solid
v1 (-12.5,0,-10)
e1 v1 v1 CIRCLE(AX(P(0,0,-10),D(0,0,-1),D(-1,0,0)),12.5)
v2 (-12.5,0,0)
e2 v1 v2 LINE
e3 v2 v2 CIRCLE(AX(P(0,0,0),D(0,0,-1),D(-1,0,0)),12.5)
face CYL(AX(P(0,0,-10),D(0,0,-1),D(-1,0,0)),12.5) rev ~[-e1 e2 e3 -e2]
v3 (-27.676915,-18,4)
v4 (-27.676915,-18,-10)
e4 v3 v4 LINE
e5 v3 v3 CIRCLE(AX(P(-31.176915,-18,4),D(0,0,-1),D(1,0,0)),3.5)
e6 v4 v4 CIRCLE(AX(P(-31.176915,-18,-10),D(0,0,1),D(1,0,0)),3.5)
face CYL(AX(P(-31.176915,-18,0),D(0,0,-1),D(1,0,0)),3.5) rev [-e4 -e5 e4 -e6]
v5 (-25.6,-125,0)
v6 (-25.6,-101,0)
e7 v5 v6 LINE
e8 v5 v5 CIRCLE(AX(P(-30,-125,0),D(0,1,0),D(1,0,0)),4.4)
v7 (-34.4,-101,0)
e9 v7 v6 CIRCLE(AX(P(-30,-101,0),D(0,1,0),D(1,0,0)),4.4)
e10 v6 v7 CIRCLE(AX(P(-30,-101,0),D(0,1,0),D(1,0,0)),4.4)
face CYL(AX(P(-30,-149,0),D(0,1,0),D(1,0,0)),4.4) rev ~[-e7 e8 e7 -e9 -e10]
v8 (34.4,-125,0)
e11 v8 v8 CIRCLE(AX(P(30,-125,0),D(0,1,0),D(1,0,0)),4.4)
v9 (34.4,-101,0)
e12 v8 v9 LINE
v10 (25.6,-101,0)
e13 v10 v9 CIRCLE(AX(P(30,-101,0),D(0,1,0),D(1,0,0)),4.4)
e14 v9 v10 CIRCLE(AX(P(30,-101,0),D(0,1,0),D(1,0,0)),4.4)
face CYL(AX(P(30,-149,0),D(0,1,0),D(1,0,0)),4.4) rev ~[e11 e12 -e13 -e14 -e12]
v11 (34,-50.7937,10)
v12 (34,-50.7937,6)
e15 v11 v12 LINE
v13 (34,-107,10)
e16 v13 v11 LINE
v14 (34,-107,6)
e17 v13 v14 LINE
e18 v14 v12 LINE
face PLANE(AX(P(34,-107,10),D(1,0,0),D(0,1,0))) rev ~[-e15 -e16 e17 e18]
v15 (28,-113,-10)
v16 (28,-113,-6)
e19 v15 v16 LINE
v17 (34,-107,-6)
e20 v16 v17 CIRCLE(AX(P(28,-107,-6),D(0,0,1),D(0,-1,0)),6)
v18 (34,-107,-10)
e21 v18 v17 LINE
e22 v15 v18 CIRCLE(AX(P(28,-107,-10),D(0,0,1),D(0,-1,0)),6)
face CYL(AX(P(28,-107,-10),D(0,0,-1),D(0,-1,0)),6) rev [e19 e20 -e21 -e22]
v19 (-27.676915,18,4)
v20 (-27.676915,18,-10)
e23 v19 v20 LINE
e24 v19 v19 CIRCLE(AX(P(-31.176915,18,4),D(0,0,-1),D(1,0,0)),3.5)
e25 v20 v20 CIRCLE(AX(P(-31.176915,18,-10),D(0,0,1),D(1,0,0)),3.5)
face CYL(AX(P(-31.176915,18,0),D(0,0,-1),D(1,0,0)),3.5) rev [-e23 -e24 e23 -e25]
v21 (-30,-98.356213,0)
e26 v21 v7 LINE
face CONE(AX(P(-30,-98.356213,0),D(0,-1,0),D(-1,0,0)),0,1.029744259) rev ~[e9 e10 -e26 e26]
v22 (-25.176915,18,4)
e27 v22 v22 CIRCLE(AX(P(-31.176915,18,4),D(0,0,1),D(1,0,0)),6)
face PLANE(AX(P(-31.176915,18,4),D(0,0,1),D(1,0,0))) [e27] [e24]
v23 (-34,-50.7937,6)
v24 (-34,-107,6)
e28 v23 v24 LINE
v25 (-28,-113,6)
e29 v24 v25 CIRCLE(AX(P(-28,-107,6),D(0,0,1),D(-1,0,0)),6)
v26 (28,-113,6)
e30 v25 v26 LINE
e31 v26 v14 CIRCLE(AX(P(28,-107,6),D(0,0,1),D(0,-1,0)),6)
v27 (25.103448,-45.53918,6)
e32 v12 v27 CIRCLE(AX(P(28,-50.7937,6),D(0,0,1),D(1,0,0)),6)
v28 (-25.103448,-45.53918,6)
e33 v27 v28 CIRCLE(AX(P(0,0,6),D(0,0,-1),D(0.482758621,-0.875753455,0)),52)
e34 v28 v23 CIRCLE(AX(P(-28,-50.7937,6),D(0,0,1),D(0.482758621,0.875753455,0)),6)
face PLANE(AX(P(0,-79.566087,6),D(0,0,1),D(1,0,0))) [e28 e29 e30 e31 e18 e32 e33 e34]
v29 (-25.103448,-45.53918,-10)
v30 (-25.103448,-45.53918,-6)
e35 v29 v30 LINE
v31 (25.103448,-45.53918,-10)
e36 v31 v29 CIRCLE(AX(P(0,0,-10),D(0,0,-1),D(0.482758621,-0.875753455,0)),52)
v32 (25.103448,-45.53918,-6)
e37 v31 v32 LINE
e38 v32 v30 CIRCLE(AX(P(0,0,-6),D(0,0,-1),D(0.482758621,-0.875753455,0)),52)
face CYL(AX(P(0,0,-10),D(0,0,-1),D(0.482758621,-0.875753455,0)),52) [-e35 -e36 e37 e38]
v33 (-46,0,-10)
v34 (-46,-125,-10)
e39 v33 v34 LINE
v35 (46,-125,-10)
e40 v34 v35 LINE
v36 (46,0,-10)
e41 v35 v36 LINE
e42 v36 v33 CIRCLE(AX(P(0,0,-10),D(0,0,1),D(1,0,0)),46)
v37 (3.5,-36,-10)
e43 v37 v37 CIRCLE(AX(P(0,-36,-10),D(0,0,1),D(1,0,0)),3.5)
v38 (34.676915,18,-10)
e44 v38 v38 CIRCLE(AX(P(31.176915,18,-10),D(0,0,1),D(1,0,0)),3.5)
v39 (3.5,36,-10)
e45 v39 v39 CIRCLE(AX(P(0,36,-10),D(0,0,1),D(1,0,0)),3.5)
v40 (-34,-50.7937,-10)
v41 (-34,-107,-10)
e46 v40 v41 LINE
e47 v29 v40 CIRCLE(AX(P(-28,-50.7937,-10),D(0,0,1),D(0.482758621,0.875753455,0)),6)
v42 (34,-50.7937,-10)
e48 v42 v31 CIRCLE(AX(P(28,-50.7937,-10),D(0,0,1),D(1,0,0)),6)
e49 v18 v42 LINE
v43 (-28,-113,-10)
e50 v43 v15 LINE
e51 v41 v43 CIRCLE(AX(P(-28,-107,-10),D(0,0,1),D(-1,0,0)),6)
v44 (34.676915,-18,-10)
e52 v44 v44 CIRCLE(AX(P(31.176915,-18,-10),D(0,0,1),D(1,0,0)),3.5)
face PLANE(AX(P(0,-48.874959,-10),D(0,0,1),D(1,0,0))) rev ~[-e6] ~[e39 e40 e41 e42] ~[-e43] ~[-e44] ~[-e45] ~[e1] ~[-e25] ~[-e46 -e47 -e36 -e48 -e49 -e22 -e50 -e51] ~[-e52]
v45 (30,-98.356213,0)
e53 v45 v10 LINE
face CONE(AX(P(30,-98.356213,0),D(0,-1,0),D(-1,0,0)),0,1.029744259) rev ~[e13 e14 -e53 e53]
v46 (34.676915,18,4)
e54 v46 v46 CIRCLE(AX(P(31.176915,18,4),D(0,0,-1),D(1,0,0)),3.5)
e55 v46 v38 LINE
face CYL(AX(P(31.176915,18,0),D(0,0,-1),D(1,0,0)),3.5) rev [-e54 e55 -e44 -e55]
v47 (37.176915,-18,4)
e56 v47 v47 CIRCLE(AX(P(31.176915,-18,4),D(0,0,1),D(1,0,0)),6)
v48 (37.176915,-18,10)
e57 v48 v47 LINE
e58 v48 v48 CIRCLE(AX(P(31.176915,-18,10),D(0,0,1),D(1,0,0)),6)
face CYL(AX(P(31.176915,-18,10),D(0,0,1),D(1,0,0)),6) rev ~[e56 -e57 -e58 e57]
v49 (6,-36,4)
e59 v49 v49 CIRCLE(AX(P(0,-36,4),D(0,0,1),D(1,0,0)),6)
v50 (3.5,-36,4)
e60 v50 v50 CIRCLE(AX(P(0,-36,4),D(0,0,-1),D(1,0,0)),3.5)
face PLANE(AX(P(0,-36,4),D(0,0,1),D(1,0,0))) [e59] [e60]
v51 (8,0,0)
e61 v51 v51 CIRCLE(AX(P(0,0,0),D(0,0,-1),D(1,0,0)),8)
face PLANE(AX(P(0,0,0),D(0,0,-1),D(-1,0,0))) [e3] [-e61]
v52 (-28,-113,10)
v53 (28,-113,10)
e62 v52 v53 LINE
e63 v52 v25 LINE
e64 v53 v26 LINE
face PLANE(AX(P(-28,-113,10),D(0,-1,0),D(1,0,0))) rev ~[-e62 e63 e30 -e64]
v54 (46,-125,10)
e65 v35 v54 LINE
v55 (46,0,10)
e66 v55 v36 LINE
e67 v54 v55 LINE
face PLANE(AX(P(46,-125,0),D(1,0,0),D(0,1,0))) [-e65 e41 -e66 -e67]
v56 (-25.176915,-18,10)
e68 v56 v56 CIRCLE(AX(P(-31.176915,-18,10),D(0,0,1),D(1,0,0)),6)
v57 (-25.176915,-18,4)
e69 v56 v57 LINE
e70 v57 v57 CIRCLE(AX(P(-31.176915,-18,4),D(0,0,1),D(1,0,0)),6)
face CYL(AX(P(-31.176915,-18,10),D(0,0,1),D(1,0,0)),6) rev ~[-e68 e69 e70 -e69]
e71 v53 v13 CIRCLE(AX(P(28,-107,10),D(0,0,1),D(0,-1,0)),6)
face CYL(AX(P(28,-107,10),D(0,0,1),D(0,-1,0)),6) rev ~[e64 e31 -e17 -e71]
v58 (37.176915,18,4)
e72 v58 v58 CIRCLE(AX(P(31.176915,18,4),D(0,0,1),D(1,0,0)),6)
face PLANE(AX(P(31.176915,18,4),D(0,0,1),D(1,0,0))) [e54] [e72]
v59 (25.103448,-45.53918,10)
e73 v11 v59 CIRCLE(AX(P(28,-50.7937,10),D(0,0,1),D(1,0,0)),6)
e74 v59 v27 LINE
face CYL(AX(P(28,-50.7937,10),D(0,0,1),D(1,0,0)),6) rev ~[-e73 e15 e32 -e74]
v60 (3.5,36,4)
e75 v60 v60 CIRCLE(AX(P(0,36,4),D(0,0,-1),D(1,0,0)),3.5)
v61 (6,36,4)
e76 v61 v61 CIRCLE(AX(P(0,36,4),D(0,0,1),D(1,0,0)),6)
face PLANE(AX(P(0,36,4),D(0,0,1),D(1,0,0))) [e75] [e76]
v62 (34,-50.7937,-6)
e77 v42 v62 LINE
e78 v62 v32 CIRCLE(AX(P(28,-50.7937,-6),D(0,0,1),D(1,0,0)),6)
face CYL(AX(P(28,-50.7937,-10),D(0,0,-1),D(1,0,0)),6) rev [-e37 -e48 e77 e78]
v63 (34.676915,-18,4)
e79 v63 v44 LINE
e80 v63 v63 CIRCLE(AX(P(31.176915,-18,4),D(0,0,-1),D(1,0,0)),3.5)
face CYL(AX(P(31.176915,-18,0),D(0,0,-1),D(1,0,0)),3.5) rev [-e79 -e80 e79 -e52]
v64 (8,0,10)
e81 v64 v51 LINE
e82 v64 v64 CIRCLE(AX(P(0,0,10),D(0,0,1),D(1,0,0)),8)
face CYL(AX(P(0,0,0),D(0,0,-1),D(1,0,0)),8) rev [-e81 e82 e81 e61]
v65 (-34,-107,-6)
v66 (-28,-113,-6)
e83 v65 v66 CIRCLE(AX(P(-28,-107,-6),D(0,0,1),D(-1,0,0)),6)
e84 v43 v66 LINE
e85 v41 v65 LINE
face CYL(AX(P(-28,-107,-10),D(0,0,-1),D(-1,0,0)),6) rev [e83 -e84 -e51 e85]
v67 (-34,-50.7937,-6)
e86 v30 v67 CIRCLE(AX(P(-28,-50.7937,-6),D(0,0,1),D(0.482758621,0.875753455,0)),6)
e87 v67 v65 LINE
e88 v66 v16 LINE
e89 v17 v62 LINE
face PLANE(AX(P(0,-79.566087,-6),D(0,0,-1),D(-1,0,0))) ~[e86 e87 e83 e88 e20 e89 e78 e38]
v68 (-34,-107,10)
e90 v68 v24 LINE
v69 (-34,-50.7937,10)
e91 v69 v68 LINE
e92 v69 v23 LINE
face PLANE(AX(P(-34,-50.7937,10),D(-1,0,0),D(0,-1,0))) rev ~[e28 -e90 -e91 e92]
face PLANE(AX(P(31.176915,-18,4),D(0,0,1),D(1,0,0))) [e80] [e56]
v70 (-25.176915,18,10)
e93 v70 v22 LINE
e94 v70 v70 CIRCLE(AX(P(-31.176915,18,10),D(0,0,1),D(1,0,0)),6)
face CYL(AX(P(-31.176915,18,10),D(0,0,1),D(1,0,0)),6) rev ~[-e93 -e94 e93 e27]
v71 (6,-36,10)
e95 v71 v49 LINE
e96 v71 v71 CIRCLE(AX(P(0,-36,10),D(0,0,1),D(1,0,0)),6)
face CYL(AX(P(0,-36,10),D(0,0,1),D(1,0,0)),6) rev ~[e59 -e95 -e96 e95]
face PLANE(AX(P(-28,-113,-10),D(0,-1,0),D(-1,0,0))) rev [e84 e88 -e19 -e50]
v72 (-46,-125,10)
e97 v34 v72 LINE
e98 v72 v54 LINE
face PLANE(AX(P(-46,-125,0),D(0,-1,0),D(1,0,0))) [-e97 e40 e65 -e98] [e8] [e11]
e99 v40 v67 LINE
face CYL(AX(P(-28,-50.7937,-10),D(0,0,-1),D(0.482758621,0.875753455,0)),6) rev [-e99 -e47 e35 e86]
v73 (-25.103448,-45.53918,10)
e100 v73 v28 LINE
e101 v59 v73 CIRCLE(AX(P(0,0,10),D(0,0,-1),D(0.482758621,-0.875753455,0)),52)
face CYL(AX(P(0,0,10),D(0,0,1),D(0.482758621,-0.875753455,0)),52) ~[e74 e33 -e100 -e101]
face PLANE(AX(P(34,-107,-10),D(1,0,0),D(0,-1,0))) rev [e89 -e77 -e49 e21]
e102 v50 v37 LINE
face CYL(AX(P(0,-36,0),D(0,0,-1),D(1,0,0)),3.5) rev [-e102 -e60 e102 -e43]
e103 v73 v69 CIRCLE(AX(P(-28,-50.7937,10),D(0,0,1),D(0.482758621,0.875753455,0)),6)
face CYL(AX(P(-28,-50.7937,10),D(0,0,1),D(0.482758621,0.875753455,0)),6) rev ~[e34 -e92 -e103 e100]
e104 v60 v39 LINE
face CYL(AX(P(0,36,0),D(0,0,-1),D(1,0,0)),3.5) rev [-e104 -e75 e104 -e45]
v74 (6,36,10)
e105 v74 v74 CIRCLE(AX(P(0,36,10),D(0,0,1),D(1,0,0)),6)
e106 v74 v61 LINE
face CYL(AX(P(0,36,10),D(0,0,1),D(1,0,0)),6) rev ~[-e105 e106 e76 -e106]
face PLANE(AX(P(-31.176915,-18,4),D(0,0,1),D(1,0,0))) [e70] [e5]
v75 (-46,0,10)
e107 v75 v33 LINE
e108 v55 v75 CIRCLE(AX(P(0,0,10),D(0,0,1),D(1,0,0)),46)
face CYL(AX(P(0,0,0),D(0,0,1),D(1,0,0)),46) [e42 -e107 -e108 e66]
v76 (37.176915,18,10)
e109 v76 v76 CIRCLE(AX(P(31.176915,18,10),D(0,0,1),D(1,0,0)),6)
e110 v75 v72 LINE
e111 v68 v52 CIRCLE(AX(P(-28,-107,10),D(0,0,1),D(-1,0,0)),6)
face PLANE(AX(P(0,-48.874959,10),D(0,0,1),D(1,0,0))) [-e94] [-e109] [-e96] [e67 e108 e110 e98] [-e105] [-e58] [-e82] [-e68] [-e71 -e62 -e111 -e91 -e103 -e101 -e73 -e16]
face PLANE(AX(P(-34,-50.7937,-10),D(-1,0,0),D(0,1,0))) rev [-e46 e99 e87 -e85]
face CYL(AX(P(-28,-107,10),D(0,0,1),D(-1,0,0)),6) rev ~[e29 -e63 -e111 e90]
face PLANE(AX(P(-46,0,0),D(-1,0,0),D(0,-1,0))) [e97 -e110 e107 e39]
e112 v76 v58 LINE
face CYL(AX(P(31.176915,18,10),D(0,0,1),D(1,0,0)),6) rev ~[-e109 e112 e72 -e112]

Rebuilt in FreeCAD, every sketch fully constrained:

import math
import FreeCAD as App
import Part
import Sketcher

doc = App.newDocument("Part")
body = doc.addObject("PartDesign::Body", "Body")

sketch1 = body.newObject("Sketcher::SketchObject", "Sketch")
sketch1.AttachmentSupport = (doc.getObject("XY_Plane"), [""])
sketch1.MapMode = "FlatFace"
sketch1.addGeometry([
    Part.LineSegment(App.Vector(-46, 0, 0), App.Vector(-46, -125, 0)),
    Part.LineSegment(App.Vector(-46, -125, 0), App.Vector(46, -125, 0)),
    Part.LineSegment(App.Vector(46, -125, 0), App.Vector(46, 0, 0)),
    Part.ArcOfCircle(Part.Circle(App.Vector(0, 0, 0), App.Vector(0, 0, 1), 46), math.radians(0), math.radians(180)),
    Part.Circle(App.Vector(-31.176915, -18, 0), App.Vector(0, 0, 1), 3.5),
    Part.Circle(App.Vector(0, -36, 0), App.Vector(0, 0, 1), 3.5),
    Part.Circle(App.Vector(31.176915, -18, 0), App.Vector(0, 0, 1), 3.5),
    Part.Circle(App.Vector(-31.176915, 18, 0), App.Vector(0, 0, 1), 3.5),
    Part.Circle(App.Vector(0, 0, 0), App.Vector(0, 0, 1), 8),
    Part.Circle(App.Vector(31.176915, 18, 0), App.Vector(0, 0, 1), 3.5),
    Part.Circle(App.Vector(0, 36, 0), App.Vector(0, 0, 1), 3.5),
], False)
sketch1.addConstraint([
    Sketcher.Constraint("Coincident", 0, 2, 1, 1),
    Sketcher.Constraint("Coincident", 1, 2, 2, 1),
    Sketcher.Constraint("Tangent", 2, 2, 3, 1),
    Sketcher.Constraint("Tangent", 3, 2, 0, 1),
    Sketcher.Constraint("Vertical", 0),
    Sketcher.Constraint("Horizontal", 1),
    Sketcher.Constraint("Vertical", 2),
    Sketcher.Constraint("Coincident", 3, 3, -1, 1),
    Sketcher.Constraint("Coincident", 8, 3, -1, 1),
    Sketcher.Constraint("Equal", 4, 5),
    Sketcher.Constraint("Equal", 5, 6),
    Sketcher.Constraint("Equal", 6, 7),
    Sketcher.Constraint("Equal", 7, 9),
    Sketcher.Constraint("Equal", 9, 10),
    Sketcher.Constraint("Symmetric", 6, 3, 7, 3, -1, 1),
    Sketcher.Constraint("Symmetric", 4, 3, 9, 3, -1, 1),
    Sketcher.Constraint("Symmetric", 5, 3, 10, 3, -1, 1),
    Sketcher.Constraint("Symmetric", 4, 3, 6, 3, -2),
    Sketcher.Constraint("PointOnObject", 5, 3, -2),
    Sketcher.Constraint("Diameter", 4, 7.0),
    Sketcher.Constraint("Diameter", 8, 16.0),
    Sketcher.Constraint("Radius", 3, 46.0),
    Sketcher.Constraint("DistanceY", 0, 2, 0, 1, 125.0),
    Sketcher.Constraint("DistanceY", 4, 3, -1, 1, 18.0),
    Sketcher.Constraint("DistanceY", 5, 3, -1, 1, 36.0),
    Sketcher.Constraint("DistanceX", 4, 3, 6, 3, 62.353829),
])
pad1 = body.newObject("PartDesign::Pad", "Pad")
pad1.Profile = sketch1
pad1.Length = 20
pad1.Midplane = True

sketch2 = body.newObject("Sketcher::SketchObject", "Sketch001")
sketch2.AttachmentSupport = (doc.getObject("XY_Plane"), [""])
sketch2.MapMode = "FlatFace"
sketch2.AttachmentOffset = App.Placement(App.Vector(0, 0, 10), App.Rotation())
sketch2.addGeometry([
    Part.Circle(App.Vector(0, 36, 0), App.Vector(0, 0, 1), 6),
    Part.Circle(App.Vector(31.176915, 18, 0), App.Vector(0, 0, 1), 6),
    Part.Circle(App.Vector(31.176915, -18, 0), App.Vector(0, 0, 1), 6),
    Part.Circle(App.Vector(0, -36, 0), App.Vector(0, 0, 1), 6),
    Part.Circle(App.Vector(-31.176915, -18, 0), App.Vector(0, 0, 1), 6),
    Part.Circle(App.Vector(-31.176915, 18, 0), App.Vector(0, 0, 1), 6),
], False)
sketch2.addConstraint([
    Sketcher.Constraint("Equal", 0, 1),
    Sketcher.Constraint("Equal", 1, 2),
    Sketcher.Constraint("Equal", 2, 3),
    Sketcher.Constraint("Equal", 3, 4),
    Sketcher.Constraint("Equal", 4, 5),
    Sketcher.Constraint("Symmetric", 0, 3, 3, 3, -1, 1),
    Sketcher.Constraint("Symmetric", 1, 3, 4, 3, -1, 1),
    Sketcher.Constraint("Symmetric", 2, 3, 5, 3, -1, 1),
    Sketcher.Constraint("Symmetric", 2, 3, 4, 3, -2),
    Sketcher.Constraint("PointOnObject", 0, 3, -2),
    Sketcher.Constraint("Diameter", 0, 12.0),
    Sketcher.Constraint("DistanceY", -1, 1, 0, 3, 36.0),
    Sketcher.Constraint("DistanceY", -1, 1, 1, 3, 18.0),
    Sketcher.Constraint("DistanceX", 4, 3, 2, 3, 62.353829),
])
pocket1 = body.newObject("PartDesign::Pocket", "Pocket")
pocket1.Profile = sketch2
pocket1.Length = 6

sketch3 = body.newObject("Sketcher::SketchObject", "Sketch002")
sketch3.AttachmentSupport = (doc.getObject("XY_Plane"), [""])
sketch3.MapMode = "FlatFace"
sketch3.AttachmentOffset = App.Placement(App.Vector(0, 0, 10), App.Rotation())
sketch3.addGeometry([
    Part.LineSegment(App.Vector(34, -107, 0), App.Vector(34, -50.7937, 0)),
    Part.ArcOfCircle(Part.Circle(App.Vector(28, -50.7937, 0), App.Vector(0, 0, 1), 6), math.radians(0), math.radians(118.865727)),
    Part.ArcOfCircle(Part.Circle(App.Vector(0, 0, 0), App.Vector(0, 0, 1), 52), math.radians(-118.865727), math.radians(-61.134273)),
    Part.ArcOfCircle(Part.Circle(App.Vector(-28, -50.7937, 0), App.Vector(0, 0, 1), 6), math.radians(61.134273), math.radians(180)),
    Part.LineSegment(App.Vector(-34, -50.7937, 0), App.Vector(-34, -107, 0)),
    Part.ArcOfCircle(Part.Circle(App.Vector(-28, -107, 0), App.Vector(0, 0, 1), 6), math.radians(180), math.radians(270)),
    Part.LineSegment(App.Vector(-28, -113, 0), App.Vector(28, -113, 0)),
    Part.ArcOfCircle(Part.Circle(App.Vector(28, -107, 0), App.Vector(0, 0, 1), 6), math.radians(-90), math.radians(0)),
], False)
sketch3.addConstraint([
    Sketcher.Constraint("Tangent", 0, 2, 1, 1),
    Sketcher.Constraint("Tangent", 1, 2, 2, 2),
    Sketcher.Constraint("Tangent", 2, 1, 3, 1),
    Sketcher.Constraint("Tangent", 3, 2, 4, 1),
    Sketcher.Constraint("Tangent", 4, 2, 5, 1),
    Sketcher.Constraint("Tangent", 5, 2, 6, 1),
    Sketcher.Constraint("Tangent", 6, 2, 7, 1),
    Sketcher.Constraint("Tangent", 7, 2, 0, 1),
    Sketcher.Constraint("Vertical", 0),
    Sketcher.Constraint("Vertical", 4),
    Sketcher.Constraint("Horizontal", 6),
    Sketcher.Constraint("Coincident", 2, 3, -1, 1),
    Sketcher.Constraint("Equal", 1, 3),
    Sketcher.Constraint("Equal", 3, 5),
    Sketcher.Constraint("Equal", 5, 7),
    Sketcher.Constraint("Horizontal", 1, 3, 3, 3),
    Sketcher.Constraint("Radius", 1, 6.0),
    Sketcher.Constraint("Radius", 2, 52.0),
    Sketcher.Constraint("DistanceX", 6, 1, 6, 2, 56.0),
    Sketcher.Constraint("DistanceY", 5, 3, -1, 1, 107.0),
])
pocket2 = body.newObject("PartDesign::Pocket", "Pocket001")
pocket2.Profile = sketch3
pocket2.Length = 4
doc.recompute()

mirrored = body.newObject("PartDesign::Mirrored", "Mirrored")
mirrored.Originals = [pocket2]
mirrored.MirrorPlane = (doc.getObject("XY_Plane"), [""])
body.Tip = mirrored

sketch4 = body.newObject("Sketcher::SketchObject", "Sketch003")
sketch4.AttachmentSupport = (doc.getObject("XY_Plane"), [""])
sketch4.MapMode = "FlatFace"
sketch4.AttachmentOffset = App.Placement(App.Vector(0, 0, -10), App.Rotation())
sketch4.addGeometry(Part.Circle(App.Vector(0, 0, 0), App.Vector(0, 0, 1), 12.5), False)
sketch4.addConstraint([
    Sketcher.Constraint("Coincident", 0, 3, -1, 1),
    Sketcher.Constraint("Diameter", 0, 25.0),
])
pocket3 = body.newObject("PartDesign::Pocket", "Pocket002")
pocket3.Profile = sketch4
pocket3.Length = 10
pocket3.Reversed = True

sketch5 = body.newObject("Sketcher::SketchObject", "Sketch004")
sketch5.AttachmentSupport = (doc.getObject("XZ_Plane"), [""])
sketch5.MapMode = "FlatFace"
sketch5.AttachmentOffset = App.Placement(App.Vector(0, 0, 125), App.Rotation())
sketch5.addGeometry([
    Part.Circle(App.Vector(30, 0, 0), App.Vector(0, 0, 1), 4.4),
    Part.Circle(App.Vector(-30, 0, 0), App.Vector(0, 0, 1), 4.4),
], False)
sketch5.addConstraint([
    Sketcher.Constraint("Equal", 0, 1),
    Sketcher.Constraint("Symmetric", 0, 3, 1, 3, -1, 1),
    Sketcher.Constraint("PointOnObject", 0, 3, -1),
    Sketcher.Constraint("Diameter", 0, 8.8),
    Sketcher.Constraint("DistanceX", -1, 1, 0, 3, 30.0),
])
doc.recompute()
hole = body.newObject("PartDesign::Hole", "Hole")
hole.Profile = sketch5
hole.ThreadType = "None"
hole.Diameter = 8.8
hole.DepthType = "Dimension"
hole.Depth = 24
hole.DrillPoint = "Angled"
hole.DrillPointAngle = 118

doc.recompute()
